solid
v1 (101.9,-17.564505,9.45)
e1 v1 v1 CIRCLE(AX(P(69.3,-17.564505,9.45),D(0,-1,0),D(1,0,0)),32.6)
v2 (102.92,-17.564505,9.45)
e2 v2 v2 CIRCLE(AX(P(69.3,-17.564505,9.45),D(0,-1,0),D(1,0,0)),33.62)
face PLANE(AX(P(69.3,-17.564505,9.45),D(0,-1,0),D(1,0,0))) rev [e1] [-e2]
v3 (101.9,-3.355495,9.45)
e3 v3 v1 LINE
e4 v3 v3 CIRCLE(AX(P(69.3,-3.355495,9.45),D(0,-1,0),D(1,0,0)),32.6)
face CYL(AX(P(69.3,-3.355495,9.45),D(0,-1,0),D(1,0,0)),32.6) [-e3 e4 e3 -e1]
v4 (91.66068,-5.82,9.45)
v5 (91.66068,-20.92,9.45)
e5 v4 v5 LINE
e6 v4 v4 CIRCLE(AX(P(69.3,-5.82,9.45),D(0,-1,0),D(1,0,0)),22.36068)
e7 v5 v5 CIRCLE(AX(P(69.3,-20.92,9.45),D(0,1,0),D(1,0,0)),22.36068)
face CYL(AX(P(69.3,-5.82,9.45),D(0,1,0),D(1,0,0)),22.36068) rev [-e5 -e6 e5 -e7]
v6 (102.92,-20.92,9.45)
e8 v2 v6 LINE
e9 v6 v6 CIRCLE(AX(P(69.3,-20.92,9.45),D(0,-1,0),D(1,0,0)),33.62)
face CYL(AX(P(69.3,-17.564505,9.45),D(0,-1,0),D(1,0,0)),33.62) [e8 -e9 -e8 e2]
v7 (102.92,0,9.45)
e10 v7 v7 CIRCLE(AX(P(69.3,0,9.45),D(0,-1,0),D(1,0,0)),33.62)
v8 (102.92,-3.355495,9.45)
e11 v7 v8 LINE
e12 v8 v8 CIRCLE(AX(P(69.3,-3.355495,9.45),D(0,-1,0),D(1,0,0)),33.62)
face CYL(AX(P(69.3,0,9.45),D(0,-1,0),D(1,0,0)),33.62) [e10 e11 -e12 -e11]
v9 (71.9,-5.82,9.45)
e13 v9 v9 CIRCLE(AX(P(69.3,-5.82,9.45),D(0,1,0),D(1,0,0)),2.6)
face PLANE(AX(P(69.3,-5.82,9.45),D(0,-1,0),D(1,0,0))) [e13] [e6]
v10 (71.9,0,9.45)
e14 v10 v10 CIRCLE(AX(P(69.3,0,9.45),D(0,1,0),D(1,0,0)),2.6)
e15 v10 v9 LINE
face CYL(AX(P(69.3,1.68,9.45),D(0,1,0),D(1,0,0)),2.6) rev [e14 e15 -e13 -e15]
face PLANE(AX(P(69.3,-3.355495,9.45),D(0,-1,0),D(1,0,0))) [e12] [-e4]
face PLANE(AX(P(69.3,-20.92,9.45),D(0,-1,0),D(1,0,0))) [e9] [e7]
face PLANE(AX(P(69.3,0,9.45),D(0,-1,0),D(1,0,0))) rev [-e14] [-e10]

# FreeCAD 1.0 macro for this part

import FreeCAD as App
import Part
import Sketcher

V = App.Vector
Q = App.Units.Quantity


def add_polygon(sketch, points):
    """Adds a closed chain of lines whose ends are joined by coincident constraints."""
    first, n = sketch.GeometryCount, len(points)
    for a, b in zip(points, points[1:] + points[:1]):
        sketch.addGeometry(Part.LineSegment(App.Vector(*a, 0), App.Vector(*b, 0)), False)
    for i in range(n):
        sketch.addConstraint(Sketcher.Constraint("Coincident", first + i, 2, first + (i + 1) % n, 1))

doc = App.newDocument("Part")
body = doc.addObject("PartDesign::Body", "Body")

sketch1 = doc.addObject("Sketcher::SketchObject", "Sketch")
body.addObject(sketch1)
sketch1.AttachmentSupport = (doc.XY_Plane, [""])
sketch1.MapMode = "FlatFace"
sketch1.AttachmentOffset = App.Placement(V(0, 0, 5.82), App.Rotation())
sketch1.addGeometry(Part.Circle(V(0, 0, 0), V(0, 0, 1), 2.6), False)
sketch1.addConstraint([
    Sketcher.Constraint("Coincident", 0, 3, -1, 1),
    Sketcher.Constraint("Diameter", 0, Q("5.2 mm")),
])
pad1 = doc.addObject("PartDesign::Pad", "Pad")
body.addObject(pad1)
pad1.Profile = sketch1
pad1.Length = 10
body2 = doc.addObject("PartDesign::Body", "Body001")
doc.recompute()

body.Placement = App.Placement(V(0, 0, -7.5), App.Rotation(V(0, 0, 1), 0))
boolean = doc.addObject("PartDesign::Boolean", "Boolean")
body2.addObject(boolean)
boolean.Type = "Fuse"
boolean.addObjects([body])
body3 = doc.addObject("PartDesign::Body", "Body002")

sketch2 = doc.addObject("Sketcher::SketchObject", "Sketch001")
body3.addObject(sketch2)
sketch2.AttachmentSupport = (doc.getObject("XY_Plane002"), [""])
sketch2.MapMode = "FlatFace"
sketch2.AttachmentOffset = App.Placement(V(0, 0, 20.92), App.Rotation())
sketch2.addGeometry(Part.Circle(V(0, 0, 0), V(0, 0, 1), 22.36068), False)
sketch2.addConstraint([
    Sketcher.Constraint("Coincident", 0, 3, -1, 1),
    Sketcher.Constraint("Diameter", 0, Q("44.72136 mm")),
])
pad2 = doc.addObject("PartDesign::Pad", "Pad001")
body3.addObject(pad2)
pad2.Profile = sketch2
pad2.Length = 20
body4 = doc.addObject("PartDesign::Body", "Body003")
doc.recompute()

body3.Placement = App.Placement(V(0, 0, -15.1), App.Rotation(V(0, 0, 1), 0))
boolean2 = doc.addObject("PartDesign::Boolean", "Boolean001")
body4.addObject(boolean2)
boolean2.Type = "Fuse"
boolean2.addObjects([body3])
body5 = doc.addObject("PartDesign::Body", "Body004")

sketch3 = doc.addObject("Sketcher::SketchObject", "Sketch002")
body5.addObject(sketch3)
sketch3.AttachmentSupport = (doc.getObject("XZ_Plane004"), [""])
sketch3.MapMode = "FlatFace"
add_polygon(sketch3, [(0, 0), (33.62, 0), (33.62, 3.355495), (32.6, 3.355495), (32.6, 17.564505), (33.62, 17.564505), (33.62, 20.92), (0, 20.92)])
sketch3.addConstraint([
    Sketcher.Constraint("Horizontal", 0),
    Sketcher.Constraint("Vertical", 1),
    Sketcher.Constraint("Horizontal", 2),
    Sketcher.Constraint("Vertical", 3),
    Sketcher.Constraint("Horizontal", 4),
    Sketcher.Constraint("Vertical", 5),
    Sketcher.Constraint("Horizontal", 6),
    Sketcher.Constraint("Vertical", 7),
    Sketcher.Constraint("Coincident", 7, 2, -1, 1),
    Sketcher.Constraint("Vertical", 1, 2, 4, 2),
    Sketcher.Constraint("Equal", 1, 5),
    Sketcher.Constraint("DistanceX", 0, 1, 0, 2, Q("33.62 mm")),
    Sketcher.Constraint("DistanceX", 2, 2, 2, 1, Q("1.02 mm")),
    Sketcher.Constraint("DistanceY", 7, 2, 7, 1, Q("20.92 mm")),
    Sketcher.Constraint("DistanceY", 3, 1, 3, 2, Q("14.20901 mm")),
])
revolution = doc.addObject("PartDesign::Revolution", "Revolution")
body5.addObject(revolution)
revolution.Profile = sketch3
revolution.ReferenceAxis = (sketch3, ["V_Axis"])
revolution.Angle = 360
doc.recompute()

boolean3 = doc.addObject("PartDesign::Boolean", "Boolean002")
body5.addObject(boolean3)
boolean3.Type = "Cut"
boolean3.addObjects([body4])
doc.recompute()

boolean4 = doc.addObject("PartDesign::Boolean", "Boolean003")
body5.addObject(boolean4)
boolean4.Type = "Cut"
boolean4.addObjects([body2])
body6 = doc.addObject("PartDesign::Body", "Body005")
doc.recompute()

body5.Placement = App.Placement(V(69.3, 0, 9.45), App.Rotation(V(1, 0, 0), 90))
boolean5 = doc.addObject("PartDesign::Boolean", "Boolean004")
body6.addObject(boolean5)
boolean5.Type = "Fuse"
boolean5.addObjects([body5])

doc.recompute()
